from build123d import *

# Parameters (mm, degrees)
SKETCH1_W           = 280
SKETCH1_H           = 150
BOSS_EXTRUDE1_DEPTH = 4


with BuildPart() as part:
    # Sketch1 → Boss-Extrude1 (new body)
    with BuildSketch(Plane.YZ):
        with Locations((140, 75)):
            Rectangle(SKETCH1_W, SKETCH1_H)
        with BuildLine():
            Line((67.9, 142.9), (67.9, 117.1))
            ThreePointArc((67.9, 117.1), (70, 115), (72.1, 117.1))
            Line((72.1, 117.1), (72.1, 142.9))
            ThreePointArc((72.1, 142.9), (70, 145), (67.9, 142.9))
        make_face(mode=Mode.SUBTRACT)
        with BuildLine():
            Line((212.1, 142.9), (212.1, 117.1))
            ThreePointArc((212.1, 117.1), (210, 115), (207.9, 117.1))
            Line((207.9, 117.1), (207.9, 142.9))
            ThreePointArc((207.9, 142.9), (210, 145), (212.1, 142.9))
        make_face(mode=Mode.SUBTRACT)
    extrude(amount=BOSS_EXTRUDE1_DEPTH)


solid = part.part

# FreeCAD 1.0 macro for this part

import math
import FreeCAD as App
import Part
import Sketcher


def add_polygon(sketch, points):
    """Adds a closed chain of lines whose ends are joined by coincident constraints."""
    first, n = sketch.GeometryCount, len(points)
    for a, b in zip(points, points[1:] + points[:1]):
        sketch.addGeometry(Part.LineSegment(App.Vector(*a, 0), App.Vector(*b, 0)), False)
    for i in range(n):
        sketch.addConstraint(Sketcher.Constraint("Coincident", first + i, 2, first + (i + 1) % n, 1))

doc = App.newDocument("Part")
body = doc.addObject("PartDesign::Body", "Body")

# Sketch on YZ plane
sketch1 = body.newObject("Sketcher::SketchObject", "Sketch")
sketch1.AttachmentSupport = (doc.getObject("YZ_Plane"), [""])
sketch1.MapMode = "FlatFace"
add_polygon(sketch1, [(0, 150), (0, 0), (280, 0), (280, 150)])  # lines 0-3
sketch1.addGeometry(Part.LineSegment(App.Vector(67.9, 117.1, 0), App.Vector(67.9, 142.9, 0)), False)  # 4
sketch1.addGeometry(Part.ArcOfCircle(Part.Circle(App.Vector(70, 142.9, 0), App.Vector(0, 0, 1), 2.1), math.radians(0), math.radians(180)), False)  # 5
sketch1.addGeometry(Part.LineSegment(App.Vector(72.1, 142.9, 0), App.Vector(72.1, 117.1, 0)), False)  # 6
sketch1.addGeometry(Part.ArcOfCircle(Part.Circle(App.Vector(70, 117.1, 0), App.Vector(0, 0, 1), 2.1), math.radians(180), math.radians(360)), False)  # 7
sketch1.addGeometry(Part.ArcOfCircle(Part.Circle(App.Vector(210, 142.9, 0), App.Vector(0, 0, 1), 2.1), math.radians(0), math.radians(180)), False)  # 8
sketch1.addGeometry(Part.LineSegment(App.Vector(212.1, 142.9, 0), App.Vector(212.1, 117.1, 0)), False)  # 9
sketch1.addGeometry(Part.ArcOfCircle(Part.Circle(App.Vector(210, 117.1, 0), App.Vector(0, 0, 1), 2.1), math.radians(180), math.radians(360)), False)  # 10
sketch1.addGeometry(Part.LineSegment(App.Vector(207.9, 117.1, 0), App.Vector(207.9, 142.9, 0)), False)  # 11
sketch1.addConstraint(Sketcher.Constraint("Tangent", 4, 2, 5, 2))
sketch1.addConstraint(Sketcher.Constraint("Tangent", 5, 1, 6, 1))
sketch1.addConstraint(Sketcher.Constraint("Tangent", 6, 2, 7, 2))
sketch1.addConstraint(Sketcher.Constraint("Tangent", 7, 1, 4, 1))
sketch1.addConstraint(Sketcher.Constraint("Tangent", 8, 1, 9, 1))
sketch1.addConstraint(Sketcher.Constraint("Tangent", 9, 2, 10, 2))
sketch1.addConstraint(Sketcher.Constraint("Tangent", 10, 1, 11, 1))
sketch1.addConstraint(Sketcher.Constraint("Tangent", 11, 2, 8, 2))
sketch1.addConstraint(Sketcher.Constraint("Vertical", 0))
sketch1.addConstraint(Sketcher.Constraint("Horizontal", 1))
sketch1.addConstraint(Sketcher.Constraint("Vertical", 2))
sketch1.addConstraint(Sketcher.Constraint("Horizontal", 3))
sketch1.addConstraint(Sketcher.Constraint("Vertical", 4))
sketch1.addConstraint(Sketcher.Constraint("Vertical", 6))
sketch1.addConstraint(Sketcher.Constraint("Vertical", 9))
sketch1.addConstraint(Sketcher.Constraint("Vertical", 11))
sketch1.addConstraint(Sketcher.Constraint("Coincident", 0, 2, -1, 1))
sketch1.addConstraint(Sketcher.Constraint("Equal", 7, 8))
sketch1.addConstraint(Sketcher.Constraint("Horizontal", 5, 3, 8, 3))
sketch1.addConstraint(Sketcher.Constraint("Horizontal", 7, 3, 10, 3))
sketch1.addConstraint(Sketcher.Constraint("Radius", 5, 2.1))
sketch1.addConstraint(Sketcher.Constraint("DistanceX", 1, 1, 1, 2, 280.0))
sketch1.addConstraint(Sketcher.Constraint("DistanceY", 0, 2, 0, 1, 150.0))
sketch1.addConstraint(Sketcher.Constraint("DistanceY", 4, 1, 4, 2, 25.8))
sketch1.addConstraint(Sketcher.Constraint("DistanceX", -1, 1, 5, 3, 70.0))
sketch1.addConstraint(Sketcher.Constraint("DistanceX", -1, 1, 8, 3, 210.0))
sketch1.addConstraint(Sketcher.Constraint("DistanceY", -1, 1, 5, 3, 142.9))
pad1 = body.newObject("PartDesign::Pad", "Pad")
pad1.Profile = sketch1
pad1.Length = 4

doc.recompute()
